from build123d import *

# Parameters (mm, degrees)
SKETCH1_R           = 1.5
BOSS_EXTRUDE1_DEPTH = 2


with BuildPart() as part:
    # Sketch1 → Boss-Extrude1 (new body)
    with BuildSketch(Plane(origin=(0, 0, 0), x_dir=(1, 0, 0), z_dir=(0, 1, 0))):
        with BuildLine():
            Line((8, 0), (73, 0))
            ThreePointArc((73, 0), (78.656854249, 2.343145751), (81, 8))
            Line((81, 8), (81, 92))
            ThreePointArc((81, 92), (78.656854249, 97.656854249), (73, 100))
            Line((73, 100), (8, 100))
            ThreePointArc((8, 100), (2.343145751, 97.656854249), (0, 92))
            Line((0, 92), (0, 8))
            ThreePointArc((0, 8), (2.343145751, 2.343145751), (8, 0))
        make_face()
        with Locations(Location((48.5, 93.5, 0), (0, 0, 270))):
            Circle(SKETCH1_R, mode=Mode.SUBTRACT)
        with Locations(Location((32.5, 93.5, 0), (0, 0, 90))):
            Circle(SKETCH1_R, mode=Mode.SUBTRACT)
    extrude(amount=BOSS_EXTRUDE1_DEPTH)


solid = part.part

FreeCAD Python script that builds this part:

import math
import FreeCAD as App
import Part
import Sketcher
from FreeCAD import Vector

doc = App.newDocument("Part")
body = doc.addObject("PartDesign::Body", "Body")

# Sketch on XZ plane
sketch1 = doc.addObject("Sketcher::SketchObject", "Sketch")
body.addObject(sketch1)
sketch1.AttachmentSupport = (doc.XZ_Plane, [""])
sketch1.MapMode = "FlatFace"
sketch1.addGeometry([
    Part.LineSegment(Vector(8, 0, 0), Vector(73, 0, 0)),  # 0
    Part.ArcOfCircle(Part.Circle(Vector(73, -8, 0), Vector(0, 0, 1), 8), math.radians(0), math.radians(90)),  # 1
    Part.LineSegment(Vector(81, -8, 0), Vector(81, -92, 0)),  # 2
    Part.ArcOfCircle(Part.Circle(Vector(73, -92, 0), Vector(0, 0, 1), 8), math.radians(-90), math.radians(0)),  # 3
    Part.LineSegment(Vector(73, -100, 0), Vector(8, -100, 0)),  # 4
    Part.ArcOfCircle(Part.Circle(Vector(8, -92, 0), Vector(0, 0, 1), 8), math.radians(-180), math.radians(-90)),  # 5
    Part.LineSegment(Vector(0, -92, 0), Vector(0, -8, 0)),  # 6
    Part.ArcOfCircle(Part.Circle(Vector(8, -8, 0), Vector(0, 0, 1), 8), math.radians(90), math.radians(180)),  # 7
    Part.Circle(Vector(32.5, -93.5, 0), Vector(0, 0, 1), 1.5),  # 8
    Part.Circle(Vector(48.5, -93.5, 0), Vector(0, 0, 1), 1.5),  # 9
], False)
sketch1.addConstraint([
    Sketcher.Constraint("Tangent", 0, 2, 1, 2),
    Sketcher.Constraint("Tangent", 1, 1, 2, 1),
    Sketcher.Constraint("Tangent", 2, 2, 3, 2),
    Sketcher.Constraint("Tangent", 3, 1, 4, 1),
    Sketcher.Constraint("Tangent", 4, 2, 5, 2),
    Sketcher.Constraint("Tangent", 5, 1, 6, 1),
    Sketcher.Constraint("Tangent", 6, 2, 7, 2),
    Sketcher.Constraint("Tangent", 7, 1, 0, 1),
    Sketcher.Constraint("Horizontal", 0),
    Sketcher.Constraint("Vertical", 2),
    Sketcher.Constraint("Horizontal", 4),
    Sketcher.Constraint("Vertical", 6),
    Sketcher.Constraint("Equal", 1, 3),
    Sketcher.Constraint("Equal", 3, 5),
    Sketcher.Constraint("Equal", 5, 7),
    Sketcher.Constraint("Equal", 8, 9),
    Sketcher.Constraint("PointOnObject", 0, 2, -1),
    Sketcher.Constraint("PointOnObject", 5, 1, -2),
    Sketcher.Constraint("Horizontal", 8, 3, 9, 3),
    Sketcher.Constraint("Diameter", 8, 3.0),
    Sketcher.Constraint("Radius", 1, 8.0),
    Sketcher.Constraint("DistanceX", 0, 1, 0, 2, 65.0),
    Sketcher.Constraint("DistanceY", 2, 2, 2, 1, 84.0),
    Sketcher.Constraint("DistanceX", 8, 3, 9, 3, 16.0),
    Sketcher.Constraint("DistanceX", -1, 1, 8, 3, 32.5),
    Sketcher.Constraint("DistanceY", 8, 3, -1, 1, 93.5),
])
pad1 = doc.addObject("PartDesign::Pad", "Pad")
body.addObject(pad1)
pad1.Profile = sketch1
pad1.Length = 2
pad1.Reversed = True

doc.recompute()
